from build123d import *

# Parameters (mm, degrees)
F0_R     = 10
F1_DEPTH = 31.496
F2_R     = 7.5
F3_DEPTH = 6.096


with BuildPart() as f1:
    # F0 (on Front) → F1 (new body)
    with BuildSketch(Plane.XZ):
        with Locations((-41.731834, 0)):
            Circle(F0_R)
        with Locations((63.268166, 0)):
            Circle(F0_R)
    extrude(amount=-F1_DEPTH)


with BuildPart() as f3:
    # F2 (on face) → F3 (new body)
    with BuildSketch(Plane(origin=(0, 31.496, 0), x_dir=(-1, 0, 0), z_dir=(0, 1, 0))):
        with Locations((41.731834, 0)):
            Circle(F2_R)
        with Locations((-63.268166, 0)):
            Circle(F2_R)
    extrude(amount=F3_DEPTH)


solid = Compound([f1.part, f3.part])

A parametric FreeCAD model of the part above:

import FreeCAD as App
import Part
import Sketcher
from FreeCAD import Vector
Q = App.Units.Quantity

doc = App.newDocument("Part")
body = doc.addObject("PartDesign::Body", "Body")
body.AllowCompound = True

# Sketch on XZ plane
sketch1 = body.newObject("Sketcher::SketchObject", "Sketch")
sketch1.AttachmentSupport = (doc.getObject("XZ_Plane"), [""])
sketch1.MapMode = "FlatFace"
sketch1.addGeometry([
    Part.Circle(Vector(-42, 0, 0), Vector(0, 0, 1), 10),
    Part.Circle(Vector(63, 0, 0), Vector(0, 0, 1), 10),
], False)
sketch1.addConstraint([
    Sketcher.Constraint("Equal", 0, 1),
    Sketcher.Constraint("PointOnObject", 0, 3, -1),
    Sketcher.Constraint("PointOnObject", 1, 3, -1),
    Sketcher.Constraint("Diameter", 0, Q("20 mm")),
    Sketcher.Constraint("DistanceX", 0, 3, 1, 3, Q("105 mm")),
    Sketcher.Constraint("DistanceX", 0, 3, -1, 1, Q("41.731834 mm")),
])
pad1 = body.newObject("PartDesign::Pad", "Pad")
pad1.Profile = sketch1
pad1.Length = 31.496
pad1.Reversed = True
body2 = doc.addObject("PartDesign::Body", "Body001")
body2.AllowCompound = True

# Sketch on XZ plane
sketch2 = body2.newObject("Sketcher::SketchObject", "Sketch001")
sketch2.AttachmentSupport = (doc.getObject("XZ_Plane001"), [""])
sketch2.MapMode = "FlatFace"
sketch2.AttachmentOffset = App.Placement(Vector(0, 0, -31.496), App.Rotation())
sketch2.addGeometry([
    Part.Circle(Vector(-42, 0, 0), Vector(0, 0, 1), 8),
    Part.Circle(Vector(63, 0, 0), Vector(0, 0, 1), 8),
], False)
sketch2.addConstraint([
    Sketcher.Constraint("Equal", 0, 1),
    Sketcher.Constraint("PointOnObject", 0, 3, -1),
    Sketcher.Constraint("PointOnObject", 1, 3, -1),
    Sketcher.Constraint("Diameter", 0, Q("15 mm")),
    Sketcher.Constraint("DistanceX", 0, 3, 1, 3, Q("105 mm")),
    Sketcher.Constraint("DistanceX", 0, 3, -1, 1, Q("41.731834 mm")),
])
pad2 = body2.newObject("PartDesign::Pad", "Pad001")
pad2.Profile = sketch2
pad2.Length = 6.096
pad2.Reversed = True

doc.recompute()
